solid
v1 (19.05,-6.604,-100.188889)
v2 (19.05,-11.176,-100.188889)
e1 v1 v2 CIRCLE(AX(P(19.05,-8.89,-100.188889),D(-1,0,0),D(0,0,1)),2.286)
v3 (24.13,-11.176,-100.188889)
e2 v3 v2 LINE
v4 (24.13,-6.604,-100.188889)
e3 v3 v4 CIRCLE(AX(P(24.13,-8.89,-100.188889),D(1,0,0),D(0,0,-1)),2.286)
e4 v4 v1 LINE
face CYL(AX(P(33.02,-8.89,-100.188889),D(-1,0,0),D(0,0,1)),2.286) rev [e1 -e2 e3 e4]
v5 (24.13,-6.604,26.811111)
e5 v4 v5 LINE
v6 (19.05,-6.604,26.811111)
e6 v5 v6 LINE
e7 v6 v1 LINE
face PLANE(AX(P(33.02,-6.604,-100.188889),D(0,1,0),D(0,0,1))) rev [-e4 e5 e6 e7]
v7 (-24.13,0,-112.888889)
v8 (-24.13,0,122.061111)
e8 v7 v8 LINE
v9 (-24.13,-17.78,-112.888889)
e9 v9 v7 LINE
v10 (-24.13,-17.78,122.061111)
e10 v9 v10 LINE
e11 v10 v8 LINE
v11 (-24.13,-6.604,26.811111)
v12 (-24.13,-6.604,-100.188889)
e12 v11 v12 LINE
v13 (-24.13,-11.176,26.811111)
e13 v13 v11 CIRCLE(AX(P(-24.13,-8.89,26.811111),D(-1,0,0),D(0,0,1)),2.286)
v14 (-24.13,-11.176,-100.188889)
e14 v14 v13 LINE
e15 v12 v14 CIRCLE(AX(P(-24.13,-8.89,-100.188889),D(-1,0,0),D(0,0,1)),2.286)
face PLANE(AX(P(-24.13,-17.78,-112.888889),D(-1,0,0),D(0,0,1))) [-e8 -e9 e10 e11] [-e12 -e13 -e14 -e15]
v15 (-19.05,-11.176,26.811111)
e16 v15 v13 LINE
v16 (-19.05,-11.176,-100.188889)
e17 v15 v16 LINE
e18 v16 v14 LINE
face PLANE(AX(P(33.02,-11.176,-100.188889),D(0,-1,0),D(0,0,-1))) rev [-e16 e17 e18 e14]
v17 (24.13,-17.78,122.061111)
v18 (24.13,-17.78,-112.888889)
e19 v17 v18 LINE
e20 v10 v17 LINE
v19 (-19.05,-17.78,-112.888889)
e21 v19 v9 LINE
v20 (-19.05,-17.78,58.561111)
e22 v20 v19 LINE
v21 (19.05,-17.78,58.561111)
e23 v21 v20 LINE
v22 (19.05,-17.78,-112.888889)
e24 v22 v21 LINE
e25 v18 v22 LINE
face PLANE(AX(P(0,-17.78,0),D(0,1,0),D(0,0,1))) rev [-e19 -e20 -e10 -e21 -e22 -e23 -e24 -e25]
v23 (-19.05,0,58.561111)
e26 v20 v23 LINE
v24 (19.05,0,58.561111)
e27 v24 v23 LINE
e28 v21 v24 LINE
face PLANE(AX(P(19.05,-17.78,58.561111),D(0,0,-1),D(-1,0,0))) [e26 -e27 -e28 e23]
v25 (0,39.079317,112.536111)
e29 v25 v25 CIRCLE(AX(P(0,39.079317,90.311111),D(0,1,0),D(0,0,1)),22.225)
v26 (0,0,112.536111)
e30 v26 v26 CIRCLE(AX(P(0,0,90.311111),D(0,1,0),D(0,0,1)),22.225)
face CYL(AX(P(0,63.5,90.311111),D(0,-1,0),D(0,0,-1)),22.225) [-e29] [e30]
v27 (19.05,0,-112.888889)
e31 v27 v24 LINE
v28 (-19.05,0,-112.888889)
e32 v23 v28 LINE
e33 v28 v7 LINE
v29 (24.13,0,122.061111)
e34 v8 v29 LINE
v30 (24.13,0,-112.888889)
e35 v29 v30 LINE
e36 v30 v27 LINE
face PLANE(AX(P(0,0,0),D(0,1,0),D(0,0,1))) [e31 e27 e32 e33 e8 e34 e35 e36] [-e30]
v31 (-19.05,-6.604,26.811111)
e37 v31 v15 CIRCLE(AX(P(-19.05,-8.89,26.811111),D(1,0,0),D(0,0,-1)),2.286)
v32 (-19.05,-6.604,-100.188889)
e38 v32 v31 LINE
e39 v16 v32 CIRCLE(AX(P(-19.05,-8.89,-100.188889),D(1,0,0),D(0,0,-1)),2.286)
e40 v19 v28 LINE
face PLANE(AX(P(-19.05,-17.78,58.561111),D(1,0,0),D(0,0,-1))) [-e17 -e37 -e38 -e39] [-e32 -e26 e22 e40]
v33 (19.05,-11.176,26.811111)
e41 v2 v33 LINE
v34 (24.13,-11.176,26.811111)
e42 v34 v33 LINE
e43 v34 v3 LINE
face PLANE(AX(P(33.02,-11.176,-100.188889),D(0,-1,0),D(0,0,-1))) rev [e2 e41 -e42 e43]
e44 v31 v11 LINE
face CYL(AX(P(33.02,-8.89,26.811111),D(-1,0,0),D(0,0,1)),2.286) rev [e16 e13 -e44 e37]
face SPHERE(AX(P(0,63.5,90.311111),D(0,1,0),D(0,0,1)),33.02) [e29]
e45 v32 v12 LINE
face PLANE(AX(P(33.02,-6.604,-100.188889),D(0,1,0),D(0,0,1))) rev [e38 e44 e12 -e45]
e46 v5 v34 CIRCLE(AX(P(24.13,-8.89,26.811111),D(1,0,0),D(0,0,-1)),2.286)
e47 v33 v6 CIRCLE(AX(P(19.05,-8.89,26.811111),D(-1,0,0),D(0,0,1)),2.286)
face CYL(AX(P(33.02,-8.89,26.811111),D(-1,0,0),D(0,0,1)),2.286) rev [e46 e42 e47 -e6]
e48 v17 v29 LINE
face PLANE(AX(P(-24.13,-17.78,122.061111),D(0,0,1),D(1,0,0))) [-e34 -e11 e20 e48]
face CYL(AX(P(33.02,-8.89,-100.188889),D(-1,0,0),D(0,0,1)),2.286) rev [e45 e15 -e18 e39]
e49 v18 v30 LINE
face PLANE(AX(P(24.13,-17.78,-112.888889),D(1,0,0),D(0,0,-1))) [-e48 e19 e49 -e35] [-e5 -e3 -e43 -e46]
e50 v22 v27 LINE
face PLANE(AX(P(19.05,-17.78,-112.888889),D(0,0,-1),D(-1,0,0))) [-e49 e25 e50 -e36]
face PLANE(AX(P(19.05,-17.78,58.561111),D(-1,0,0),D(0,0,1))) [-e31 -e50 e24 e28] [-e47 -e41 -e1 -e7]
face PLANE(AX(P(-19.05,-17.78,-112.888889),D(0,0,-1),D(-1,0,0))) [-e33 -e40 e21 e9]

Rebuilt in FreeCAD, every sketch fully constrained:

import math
import FreeCAD as App
import Part
import Sketcher
Q = App.Units.Quantity

doc = App.newDocument("Part")
body = doc.addObject("PartDesign::Body", "Body")

# Sketch on XZ plane
sketch1 = body.newObject("Sketcher::SketchObject", "Sketch")
sketch1.AttachmentSupport = (doc.getObject("XZ_Plane"), [""])
sketch1.MapMode = "FlatFace"
sketch1.addGeometry(Part.LineSegment(App.Vector(-19, -113, 0), App.Vector(-24, -113, 0)), False)
sketch1.addGeometry(Part.LineSegment(App.Vector(-24, -113, 0), App.Vector(-24, 122, 0)), False)
sketch1.addGeometry(Part.LineSegment(App.Vector(-24, 122, 0), App.Vector(24, 122, 0)), False)
sketch1.addGeometry(Part.LineSegment(App.Vector(24, 122, 0), App.Vector(24, -113, 0)), False)
sketch1.addGeometry(Part.LineSegment(App.Vector(24, -113, 0), App.Vector(19, -113, 0)), False)
sketch1.addGeometry(Part.LineSegment(App.Vector(19, -113, 0), App.Vector(19, 59, 0)), False)
sketch1.addGeometry(Part.LineSegment(App.Vector(19, 59, 0), App.Vector(-19, 59, 0)), False)
sketch1.addGeometry(Part.LineSegment(App.Vector(-19, 59, 0), App.Vector(-19, -113, 0)), False)
sketch1.addConstraint(Sketcher.Constraint("Coincident", 0, 2, 1, 1))
sketch1.addConstraint(Sketcher.Constraint("Coincident", 1, 2, 2, 1))
sketch1.addConstraint(Sketcher.Constraint("Coincident", 2, 2, 3, 1))
sketch1.addConstraint(Sketcher.Constraint("Coincident", 3, 2, 4, 1))
sketch1.addConstraint(Sketcher.Constraint("Coincident", 4, 2, 5, 1))
sketch1.addConstraint(Sketcher.Constraint("Coincident", 5, 2, 6, 1))
sketch1.addConstraint(Sketcher.Constraint("Coincident", 6, 2, 7, 1))
sketch1.addConstraint(Sketcher.Constraint("Coincident", 7, 2, 0, 1))
sketch1.addConstraint(Sketcher.Constraint("Horizontal", 0))
sketch1.addConstraint(Sketcher.Constraint("Vertical", 1))
sketch1.addConstraint(Sketcher.Constraint("Horizontal", 2))
sketch1.addConstraint(Sketcher.Constraint("Vertical", 3))
sketch1.addConstraint(Sketcher.Constraint("Horizontal", 4))
sketch1.addConstraint(Sketcher.Constraint("Vertical", 5))
sketch1.addConstraint(Sketcher.Constraint("Horizontal", 6))
sketch1.addConstraint(Sketcher.Constraint("Vertical", 7))
sketch1.addConstraint(Sketcher.Constraint("Symmetric", 0, 2, 3, 2, -2))
sketch1.addConstraint(Sketcher.Constraint("Equal", 0, 4))
sketch1.addConstraint(Sketcher.Constraint("DistanceX", 0, 2, 0, 1, Q("0.2 in")))
sketch1.addConstraint(Sketcher.Constraint("DistanceX", 2, 1, 2, 2, Q("1.9 in")))
sketch1.addConstraint(Sketcher.Constraint("DistanceY", 1, 1, 1, 2, Q("9.25 in")))
sketch1.addConstraint(Sketcher.Constraint("DistanceY", 5, 1, 5, 2, Q("6.75 in")))
sketch1.addConstraint(Sketcher.Constraint("DistanceY", 0, 2, -1, 1, Q("112.888889 mm")))
pad1 = body.newObject("PartDesign::Pad", "Pad")
pad1.Profile = sketch1
pad1.Length = Q("0.7 in")

# Sketch on XZ plane
sketch2 = body.newObject("Sketcher::SketchObject", "Sketch001")
sketch2.AttachmentSupport = (doc.getObject("XZ_Plane"), [""])
sketch2.MapMode = "FlatFace"
sketch2.addGeometry(Part.Circle(App.Vector(0, 90, 0), App.Vector(0, 0, 1), 22), False)
sketch2.addConstraint(Sketcher.Constraint("PointOnObject", 0, 3, -2))
sketch2.addConstraint(Sketcher.Constraint("Diameter", 0, Q("1.75 in")))
sketch2.addConstraint(Sketcher.Constraint("DistanceY", -1, 1, 0, 3, Q("90.311111 mm")))
pad2 = body.newObject("PartDesign::Pad", "Pad001")
pad2.Profile = sketch2
pad2.Length = Q("2.5 in")
pad2.Reversed = True

# Sketch on XY plane
sketch3 = body.newObject("Sketcher::SketchObject", "Sketch002")
sketch3.AttachmentSupport = (doc.getObject("XY_Plane"), [""])
sketch3.MapMode = "FlatFace"
sketch3.AttachmentOffset = App.Placement(App.Vector(0, 0, 90.311111), App.Rotation())
sketch3.addGeometry(Part.LineSegment(App.Vector(-33, 64, 0), App.Vector(33, 64, 0)), False)
sketch3.addGeometry(Part.ArcOfCircle(Part.Circle(App.Vector(0, 64, 0), App.Vector(0, 0, 1), 33), math.radians(0), math.radians(180)), False)
sketch3.addGeometry(Part.LineSegment(App.Vector(-33, 64, 0), App.Vector(33, 64, 0)), True)  # axis
sketch3.addConstraint(Sketcher.Constraint("Coincident", 0, 1, 1, 2))
sketch3.addConstraint(Sketcher.Constraint("Coincident", 1, 1, 0, 2))
sketch3.addConstraint(Sketcher.Constraint("Horizontal", 0))
sketch3.addConstraint(Sketcher.Constraint("Horizontal", 2))
sketch3.addConstraint(Sketcher.Constraint("Coincident", 2, 1, 0, 1))
sketch3.addConstraint(Sketcher.Constraint("PointOnObject", 1, 3, -2))
sketch3.addConstraint(Sketcher.Constraint("Horizontal", 1, 3, 0, 1))
sketch3.addConstraint(Sketcher.Constraint("Equal", 0, 2))
sketch3.addConstraint(Sketcher.Constraint("Radius", 1, Q("1.3 in")))
sketch3.addConstraint(Sketcher.Constraint("DistanceY", -1, 1, 1, 3, Q("2.5 in")))
revolution = body.newObject("PartDesign::Revolution", "Revolution")
revolution.Profile = sketch3
revolution.ReferenceAxis = (sketch3, ["Axis0"])
revolution.Angle = 360

# Sketch on YZ plane
sketch4 = body.newObject("Sketcher::SketchObject", "Sketch003")
sketch4.AttachmentSupport = (doc.getObject("YZ_Plane"), [""])
sketch4.MapMode = "FlatFace"
sketch4.AttachmentOffset = App.Placement(App.Vector(0, 0, -0.95 * 25.4), App.Rotation())
sketch4.addGeometry(Part.LineSegment(App.Vector(-6.6, 26.8, 0), App.Vector(-6.6, -100.2, 0)), False)
sketch4.addGeometry(Part.ArcOfCircle(Part.Circle(App.Vector(-8.9, -100.2, 0), App.Vector(0, 0, 1), 2.3), math.radians(180), math.radians(360)), False)
sketch4.addGeometry(Part.LineSegment(App.Vector(-11.2, -100.2, 0), App.Vector(-11.2, 26.8, 0)), False)
sketch4.addGeometry(Part.ArcOfCircle(Part.Circle(App.Vector(-8.9, 26.8, 0), App.Vector(0, 0, 1), 2.3), math.radians(0), math.radians(180)), False)
sketch4.addConstraint(Sketcher.Constraint("Tangent", 0, 2, 1, 2))
sketch4.addConstraint(Sketcher.Constraint("Tangent", 1, 1, 2, 1))
sketch4.addConstraint(Sketcher.Constraint("Tangent", 2, 2, 3, 2))
sketch4.addConstraint(Sketcher.Constraint("Tangent", 3, 1, 0, 1))
sketch4.addConstraint(Sketcher.Constraint("Vertical", 0))
sketch4.addConstraint(Sketcher.Constraint("Vertical", 2))
sketch4.addConstraint(Sketcher.Constraint("DistanceY", 0, 2, 0, 1, Q("5 in")))
sketch4.addConstraint(Sketcher.Constraint("Radius", 1, Q("0.09 in")))
sketch4.addConstraint(Sketcher.Constraint("DistanceX", 1, 3, -1, 1, Q("0.35 in")))
sketch4.addConstraint(Sketcher.Constraint("DistanceY", 1, 3, -1, 1, Q("100.188889 mm")))
pocket1 = body.newObject("PartDesign::Pocket", "Pocket")
pocket1.Profile = sketch4
pocket1.Type = "ThroughAll"
pocket1.Reversed = True

doc.recompute()
